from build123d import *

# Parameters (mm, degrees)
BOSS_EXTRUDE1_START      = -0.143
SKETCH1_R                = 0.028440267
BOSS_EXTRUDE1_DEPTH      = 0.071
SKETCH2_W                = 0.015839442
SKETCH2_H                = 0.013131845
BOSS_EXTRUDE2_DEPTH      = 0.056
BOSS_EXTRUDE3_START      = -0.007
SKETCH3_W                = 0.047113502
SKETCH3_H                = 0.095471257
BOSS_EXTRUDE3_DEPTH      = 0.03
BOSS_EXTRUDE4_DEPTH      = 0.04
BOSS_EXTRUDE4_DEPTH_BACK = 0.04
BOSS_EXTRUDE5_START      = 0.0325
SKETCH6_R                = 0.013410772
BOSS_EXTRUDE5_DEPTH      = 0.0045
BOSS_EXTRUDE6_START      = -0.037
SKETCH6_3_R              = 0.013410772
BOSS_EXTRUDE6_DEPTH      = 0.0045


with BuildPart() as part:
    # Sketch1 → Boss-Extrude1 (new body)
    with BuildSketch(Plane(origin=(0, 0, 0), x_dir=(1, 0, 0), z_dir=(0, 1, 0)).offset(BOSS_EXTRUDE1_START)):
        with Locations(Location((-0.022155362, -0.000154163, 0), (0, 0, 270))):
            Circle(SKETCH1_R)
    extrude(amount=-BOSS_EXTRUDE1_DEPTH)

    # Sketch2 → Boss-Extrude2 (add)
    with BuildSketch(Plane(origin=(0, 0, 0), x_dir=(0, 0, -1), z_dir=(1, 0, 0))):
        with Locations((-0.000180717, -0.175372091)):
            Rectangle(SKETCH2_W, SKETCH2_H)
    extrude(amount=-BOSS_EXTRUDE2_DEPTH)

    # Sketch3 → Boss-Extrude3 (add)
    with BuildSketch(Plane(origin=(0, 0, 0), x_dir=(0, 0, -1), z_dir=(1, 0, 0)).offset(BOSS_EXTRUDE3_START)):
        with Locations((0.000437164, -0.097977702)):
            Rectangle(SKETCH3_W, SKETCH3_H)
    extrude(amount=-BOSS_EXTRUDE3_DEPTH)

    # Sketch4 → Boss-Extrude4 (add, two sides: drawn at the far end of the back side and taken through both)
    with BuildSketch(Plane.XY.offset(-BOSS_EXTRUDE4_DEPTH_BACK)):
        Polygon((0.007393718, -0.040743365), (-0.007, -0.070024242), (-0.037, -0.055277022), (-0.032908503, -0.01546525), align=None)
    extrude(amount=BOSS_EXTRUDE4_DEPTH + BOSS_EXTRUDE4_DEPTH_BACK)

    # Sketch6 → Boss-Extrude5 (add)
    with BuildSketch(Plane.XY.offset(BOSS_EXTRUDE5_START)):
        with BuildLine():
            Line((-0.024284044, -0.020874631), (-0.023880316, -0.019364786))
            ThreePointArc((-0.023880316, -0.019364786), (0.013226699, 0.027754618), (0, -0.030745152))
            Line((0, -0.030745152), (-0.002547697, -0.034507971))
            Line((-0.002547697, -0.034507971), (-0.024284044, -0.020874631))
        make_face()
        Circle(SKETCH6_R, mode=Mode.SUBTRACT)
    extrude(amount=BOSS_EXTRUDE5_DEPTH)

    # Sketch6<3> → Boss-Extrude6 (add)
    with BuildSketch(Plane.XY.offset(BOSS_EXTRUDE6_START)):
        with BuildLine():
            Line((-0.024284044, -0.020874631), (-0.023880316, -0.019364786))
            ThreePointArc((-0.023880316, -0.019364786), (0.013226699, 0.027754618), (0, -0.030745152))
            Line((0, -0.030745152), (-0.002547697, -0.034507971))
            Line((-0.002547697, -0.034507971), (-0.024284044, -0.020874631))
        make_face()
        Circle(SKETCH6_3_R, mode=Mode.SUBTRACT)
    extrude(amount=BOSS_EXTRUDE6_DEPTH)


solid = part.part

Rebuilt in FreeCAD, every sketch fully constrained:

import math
import FreeCAD as App
import Part
import Sketcher
from FreeCAD import Vector


def add_polygon(sketch, points):
    """Adds a closed chain of lines whose ends are joined by coincident constraints."""
    first, n = sketch.GeometryCount, len(points)
    for a, b in zip(points, points[1:] + points[:1]):
        sketch.addGeometry(Part.LineSegment(App.Vector(*a, 0), App.Vector(*b, 0)), False)
    for i in range(n):
        sketch.addConstraint(Sketcher.Constraint("Coincident", first + i, 2, first + (i + 1) % n, 1))

doc = App.newDocument("Part")
body = doc.addObject("PartDesign::Body", "Body")

# Sketch on XZ plane
sketch1 = body.newObject("Sketcher::SketchObject", "Sketch")
sketch1.AttachmentSupport = (doc.getObject("XZ_Plane"), [""])
sketch1.MapMode = "FlatFace"
sketch1.AttachmentOffset = App.Placement(Vector(0, 0, 0.143), App.Rotation())
sketch1.addGeometry(Part.Circle(Vector(-0.022155, 0.000154, 0), Vector(0, 0, 1), 0.02844), False)
sketch1.addConstraint([
    Sketcher.Constraint("Diameter", 0, 0.056881),
    Sketcher.Constraint("DistanceX", 0, 3, -1, 1, 0.022155),
    Sketcher.Constraint("DistanceY", -1, 1, 0, 3, 0.000154),
])
pad1 = body.newObject("PartDesign::Pad", "Pad")
pad1.Profile = sketch1
pad1.Length = 0.071

# Sketch on YZ plane
sketch2 = body.newObject("Sketcher::SketchObject", "Sketch001")
sketch2.AttachmentSupport = (doc.getObject("YZ_Plane"), [""])
sketch2.MapMode = "FlatFace"
add_polygon(sketch2, [(-0.168806, 0.0081), (-0.181938, 0.0081), (-0.181938, -0.007739), (-0.168806, -0.007739)])  # lines 0-3
sketch2.addConstraint([
    Sketcher.Constraint("Horizontal", 0),
    Sketcher.Constraint("Vertical", 1),
    Sketcher.Constraint("Horizontal", 2),
    Sketcher.Constraint("Vertical", 3),
    Sketcher.Constraint("DistanceX", 0, 2, 0, 1, 0.013132),
    Sketcher.Constraint("DistanceY", 1, 2, 1, 1, 0.015839),
    Sketcher.Constraint("DistanceY", -1, 1, 0, 2, 0.0081),
    Sketcher.Constraint("DistanceX", 0, 2, -1, 1, 0.181938),
])
pad2 = body.newObject("PartDesign::Pad", "Pad001")
pad2.Profile = sketch2
pad2.Length = 0.056
pad2.Reversed = True

# Sketch on YZ plane
sketch3 = body.newObject("Sketcher::SketchObject", "Sketch002")
sketch3.AttachmentSupport = (doc.getObject("YZ_Plane"), [""])
sketch3.MapMode = "FlatFace"
sketch3.AttachmentOffset = App.Placement(Vector(0, 0, -0.007), App.Rotation())
add_polygon(sketch3, [(-0.050242, 0.02312), (-0.145713, 0.02312), (-0.145713, -0.023994), (-0.050242, -0.023994)])  # lines 0-3
sketch3.addConstraint([
    Sketcher.Constraint("Horizontal", 0),
    Sketcher.Constraint("Vertical", 1),
    Sketcher.Constraint("Horizontal", 2),
    Sketcher.Constraint("Vertical", 3),
    Sketcher.Constraint("DistanceX", 0, 2, 0, 1, 0.095471),
    Sketcher.Constraint("DistanceY", 1, 2, 1, 1, 0.047114),
    Sketcher.Constraint("DistanceY", -1, 1, 0, 2, 0.02312),
    Sketcher.Constraint("DistanceX", 0, 2, -1, 1, 0.145713),
])
pad3 = body.newObject("PartDesign::Pad", "Pad002")
pad3.Profile = sketch3
pad3.Length = 0.03
pad3.Reversed = True

# Sketch on XY plane
sketch4 = body.newObject("Sketcher::SketchObject", "Sketch003")
sketch4.AttachmentSupport = (doc.getObject("XY_Plane"), [""])
sketch4.MapMode = "FlatFace"
add_polygon(sketch4, [(-0.007, -0.070024), (0.007394, -0.040743), (-0.032909, -0.015465), (-0.037, -0.055277)])  # lines 0-3
sketch4.addConstraint([
    Sketcher.Constraint("Perpendicular", 0, 3),
    Sketcher.Constraint("DistanceX", 2, 2, 3, 2, 0.03),
    Sketcher.Constraint("DistanceX", 2, 2, -1, 1, 0.037),
    Sketcher.Constraint("Distance", 2, 0.040021),
    Sketcher.Constraint("Distance", 3, 0.033429),
    Sketcher.Constraint("DistanceX", 1, 2, -1, 1, 0.032909),
    Sketcher.Constraint("DistanceY", 0, 2, 1, 2, 0.025278),
    Sketcher.Constraint("DistanceY", 0, 2, -1, 1, 0.040743),
])
pad4 = body.newObject("PartDesign::Pad", "Pad003")
pad4.Profile = sketch4
pad4.Type = "TwoLengths"
pad4.Length = 0.04
pad4.Length2 = 0.04

# Sketch on XY plane
sketch5 = body.newObject("Sketcher::SketchObject", "Sketch004")
sketch5.AttachmentSupport = (doc.getObject("XY_Plane"), [""])
sketch5.MapMode = "FlatFace"
sketch5.AttachmentOffset = App.Placement(Vector(0, 0, 0.0325), App.Rotation())
sketch5.addGeometry([
    Part.LineSegment(Vector(-0.02388, -0.019365, 0), Vector(-0.024284, -0.020875, 0)),  # 0
    Part.LineSegment(Vector(-0.024284, -0.020875, 0), Vector(-0.002548, -0.034508, 0)),  # 1
    Part.LineSegment(Vector(-0.002548, -0.034508, 0), Vector(0, -0.030745, 0)),  # 2
    Part.ArcOfCircle(Part.Circle(Vector(0, 0, 0), Vector(0, 0, 1), 0.030745), math.radians(-89.999998), math.radians(219.038941)),  # 3
    Part.Circle(Vector(0, 0, 0), Vector(0, 0, 1), 0.013411),  # 4
], False)
sketch5.addConstraint([
    Sketcher.Constraint("Coincident", 0, 2, 1, 1),
    Sketcher.Constraint("Coincident", 1, 2, 2, 1),
    Sketcher.Constraint("Coincident", 2, 2, 3, 1),
    Sketcher.Constraint("Coincident", 3, 2, 0, 1),
    Sketcher.Constraint("Coincident", 3, 3, -1, 1),
    Sketcher.Constraint("Coincident", 4, 3, -1, 1),
    Sketcher.Constraint("PointOnObject", 2, 2, -2),
    Sketcher.Constraint("Diameter", 4, 0.026822),
    Sketcher.Constraint("Radius", 3, 0.030745),
    Sketcher.Constraint("Distance", 1, 0.025658),
    Sketcher.Constraint("DistanceX", 3, 2, -1, 1, 0.02388),
    Sketcher.Constraint("DistanceY", 2, 2, 0, 2, 0.009871),
    Sketcher.Constraint("Distance", 0, 0.001563),
    Sketcher.Constraint("Distance", 2, 0.004544),
])
pad5 = body.newObject("PartDesign::Pad", "Pad004")
pad5.Profile = sketch5
pad5.Length = 0.0045

# Sketch on XY plane
sketch6 = body.newObject("Sketcher::SketchObject", "Sketch005")
sketch6.AttachmentSupport = (doc.getObject("XY_Plane"), [""])
sketch6.MapMode = "FlatFace"
sketch6.AttachmentOffset = App.Placement(Vector(0, 0, -0.037), App.Rotation())
sketch6.addGeometry([
    Part.LineSegment(Vector(-0.02388, -0.019365, 0), Vector(-0.024284, -0.020875, 0)),  # 0
    Part.LineSegment(Vector(-0.024284, -0.020875, 0), Vector(-0.002548, -0.034508, 0)),  # 1
    Part.LineSegment(Vector(-0.002548, -0.034508, 0), Vector(0, -0.030745, 0)),  # 2
    Part.ArcOfCircle(Part.Circle(Vector(0, 0, 0), Vector(0, 0, 1), 0.030745), math.radians(-89.999998), math.radians(219.038941)),  # 3
    Part.Circle(Vector(0, 0, 0), Vector(0, 0, 1), 0.013411),  # 4
], False)
sketch6.addConstraint([
    Sketcher.Constraint("Coincident", 0, 2, 1, 1),
    Sketcher.Constraint("Coincident", 1, 2, 2, 1),
    Sketcher.Constraint("Coincident", 2, 2, 3, 1),
    Sketcher.Constraint("Coincident", 3, 2, 0, 1),
    Sketcher.Constraint("Coincident", 3, 3, -1, 1),
    Sketcher.Constraint("Coincident", 4, 3, -1, 1),
    Sketcher.Constraint("PointOnObject", 2, 2, -2),
    Sketcher.Constraint("Diameter", 4, 0.026822),
    Sketcher.Constraint("Radius", 3, 0.030745),
    Sketcher.Constraint("Distance", 1, 0.025658),
    Sketcher.Constraint("DistanceX", 3, 2, -1, 1, 0.02388),
    Sketcher.Constraint("DistanceY", 2, 2, 0, 2, 0.009871),
    Sketcher.Constraint("Distance", 0, 0.001563),
    Sketcher.Constraint("Distance", 2, 0.004544),
])
pad6 = body.newObject("PartDesign::Pad", "Pad005")
pad6.Profile = sketch6
pad6.Length = 0.0045

doc.recompute()
